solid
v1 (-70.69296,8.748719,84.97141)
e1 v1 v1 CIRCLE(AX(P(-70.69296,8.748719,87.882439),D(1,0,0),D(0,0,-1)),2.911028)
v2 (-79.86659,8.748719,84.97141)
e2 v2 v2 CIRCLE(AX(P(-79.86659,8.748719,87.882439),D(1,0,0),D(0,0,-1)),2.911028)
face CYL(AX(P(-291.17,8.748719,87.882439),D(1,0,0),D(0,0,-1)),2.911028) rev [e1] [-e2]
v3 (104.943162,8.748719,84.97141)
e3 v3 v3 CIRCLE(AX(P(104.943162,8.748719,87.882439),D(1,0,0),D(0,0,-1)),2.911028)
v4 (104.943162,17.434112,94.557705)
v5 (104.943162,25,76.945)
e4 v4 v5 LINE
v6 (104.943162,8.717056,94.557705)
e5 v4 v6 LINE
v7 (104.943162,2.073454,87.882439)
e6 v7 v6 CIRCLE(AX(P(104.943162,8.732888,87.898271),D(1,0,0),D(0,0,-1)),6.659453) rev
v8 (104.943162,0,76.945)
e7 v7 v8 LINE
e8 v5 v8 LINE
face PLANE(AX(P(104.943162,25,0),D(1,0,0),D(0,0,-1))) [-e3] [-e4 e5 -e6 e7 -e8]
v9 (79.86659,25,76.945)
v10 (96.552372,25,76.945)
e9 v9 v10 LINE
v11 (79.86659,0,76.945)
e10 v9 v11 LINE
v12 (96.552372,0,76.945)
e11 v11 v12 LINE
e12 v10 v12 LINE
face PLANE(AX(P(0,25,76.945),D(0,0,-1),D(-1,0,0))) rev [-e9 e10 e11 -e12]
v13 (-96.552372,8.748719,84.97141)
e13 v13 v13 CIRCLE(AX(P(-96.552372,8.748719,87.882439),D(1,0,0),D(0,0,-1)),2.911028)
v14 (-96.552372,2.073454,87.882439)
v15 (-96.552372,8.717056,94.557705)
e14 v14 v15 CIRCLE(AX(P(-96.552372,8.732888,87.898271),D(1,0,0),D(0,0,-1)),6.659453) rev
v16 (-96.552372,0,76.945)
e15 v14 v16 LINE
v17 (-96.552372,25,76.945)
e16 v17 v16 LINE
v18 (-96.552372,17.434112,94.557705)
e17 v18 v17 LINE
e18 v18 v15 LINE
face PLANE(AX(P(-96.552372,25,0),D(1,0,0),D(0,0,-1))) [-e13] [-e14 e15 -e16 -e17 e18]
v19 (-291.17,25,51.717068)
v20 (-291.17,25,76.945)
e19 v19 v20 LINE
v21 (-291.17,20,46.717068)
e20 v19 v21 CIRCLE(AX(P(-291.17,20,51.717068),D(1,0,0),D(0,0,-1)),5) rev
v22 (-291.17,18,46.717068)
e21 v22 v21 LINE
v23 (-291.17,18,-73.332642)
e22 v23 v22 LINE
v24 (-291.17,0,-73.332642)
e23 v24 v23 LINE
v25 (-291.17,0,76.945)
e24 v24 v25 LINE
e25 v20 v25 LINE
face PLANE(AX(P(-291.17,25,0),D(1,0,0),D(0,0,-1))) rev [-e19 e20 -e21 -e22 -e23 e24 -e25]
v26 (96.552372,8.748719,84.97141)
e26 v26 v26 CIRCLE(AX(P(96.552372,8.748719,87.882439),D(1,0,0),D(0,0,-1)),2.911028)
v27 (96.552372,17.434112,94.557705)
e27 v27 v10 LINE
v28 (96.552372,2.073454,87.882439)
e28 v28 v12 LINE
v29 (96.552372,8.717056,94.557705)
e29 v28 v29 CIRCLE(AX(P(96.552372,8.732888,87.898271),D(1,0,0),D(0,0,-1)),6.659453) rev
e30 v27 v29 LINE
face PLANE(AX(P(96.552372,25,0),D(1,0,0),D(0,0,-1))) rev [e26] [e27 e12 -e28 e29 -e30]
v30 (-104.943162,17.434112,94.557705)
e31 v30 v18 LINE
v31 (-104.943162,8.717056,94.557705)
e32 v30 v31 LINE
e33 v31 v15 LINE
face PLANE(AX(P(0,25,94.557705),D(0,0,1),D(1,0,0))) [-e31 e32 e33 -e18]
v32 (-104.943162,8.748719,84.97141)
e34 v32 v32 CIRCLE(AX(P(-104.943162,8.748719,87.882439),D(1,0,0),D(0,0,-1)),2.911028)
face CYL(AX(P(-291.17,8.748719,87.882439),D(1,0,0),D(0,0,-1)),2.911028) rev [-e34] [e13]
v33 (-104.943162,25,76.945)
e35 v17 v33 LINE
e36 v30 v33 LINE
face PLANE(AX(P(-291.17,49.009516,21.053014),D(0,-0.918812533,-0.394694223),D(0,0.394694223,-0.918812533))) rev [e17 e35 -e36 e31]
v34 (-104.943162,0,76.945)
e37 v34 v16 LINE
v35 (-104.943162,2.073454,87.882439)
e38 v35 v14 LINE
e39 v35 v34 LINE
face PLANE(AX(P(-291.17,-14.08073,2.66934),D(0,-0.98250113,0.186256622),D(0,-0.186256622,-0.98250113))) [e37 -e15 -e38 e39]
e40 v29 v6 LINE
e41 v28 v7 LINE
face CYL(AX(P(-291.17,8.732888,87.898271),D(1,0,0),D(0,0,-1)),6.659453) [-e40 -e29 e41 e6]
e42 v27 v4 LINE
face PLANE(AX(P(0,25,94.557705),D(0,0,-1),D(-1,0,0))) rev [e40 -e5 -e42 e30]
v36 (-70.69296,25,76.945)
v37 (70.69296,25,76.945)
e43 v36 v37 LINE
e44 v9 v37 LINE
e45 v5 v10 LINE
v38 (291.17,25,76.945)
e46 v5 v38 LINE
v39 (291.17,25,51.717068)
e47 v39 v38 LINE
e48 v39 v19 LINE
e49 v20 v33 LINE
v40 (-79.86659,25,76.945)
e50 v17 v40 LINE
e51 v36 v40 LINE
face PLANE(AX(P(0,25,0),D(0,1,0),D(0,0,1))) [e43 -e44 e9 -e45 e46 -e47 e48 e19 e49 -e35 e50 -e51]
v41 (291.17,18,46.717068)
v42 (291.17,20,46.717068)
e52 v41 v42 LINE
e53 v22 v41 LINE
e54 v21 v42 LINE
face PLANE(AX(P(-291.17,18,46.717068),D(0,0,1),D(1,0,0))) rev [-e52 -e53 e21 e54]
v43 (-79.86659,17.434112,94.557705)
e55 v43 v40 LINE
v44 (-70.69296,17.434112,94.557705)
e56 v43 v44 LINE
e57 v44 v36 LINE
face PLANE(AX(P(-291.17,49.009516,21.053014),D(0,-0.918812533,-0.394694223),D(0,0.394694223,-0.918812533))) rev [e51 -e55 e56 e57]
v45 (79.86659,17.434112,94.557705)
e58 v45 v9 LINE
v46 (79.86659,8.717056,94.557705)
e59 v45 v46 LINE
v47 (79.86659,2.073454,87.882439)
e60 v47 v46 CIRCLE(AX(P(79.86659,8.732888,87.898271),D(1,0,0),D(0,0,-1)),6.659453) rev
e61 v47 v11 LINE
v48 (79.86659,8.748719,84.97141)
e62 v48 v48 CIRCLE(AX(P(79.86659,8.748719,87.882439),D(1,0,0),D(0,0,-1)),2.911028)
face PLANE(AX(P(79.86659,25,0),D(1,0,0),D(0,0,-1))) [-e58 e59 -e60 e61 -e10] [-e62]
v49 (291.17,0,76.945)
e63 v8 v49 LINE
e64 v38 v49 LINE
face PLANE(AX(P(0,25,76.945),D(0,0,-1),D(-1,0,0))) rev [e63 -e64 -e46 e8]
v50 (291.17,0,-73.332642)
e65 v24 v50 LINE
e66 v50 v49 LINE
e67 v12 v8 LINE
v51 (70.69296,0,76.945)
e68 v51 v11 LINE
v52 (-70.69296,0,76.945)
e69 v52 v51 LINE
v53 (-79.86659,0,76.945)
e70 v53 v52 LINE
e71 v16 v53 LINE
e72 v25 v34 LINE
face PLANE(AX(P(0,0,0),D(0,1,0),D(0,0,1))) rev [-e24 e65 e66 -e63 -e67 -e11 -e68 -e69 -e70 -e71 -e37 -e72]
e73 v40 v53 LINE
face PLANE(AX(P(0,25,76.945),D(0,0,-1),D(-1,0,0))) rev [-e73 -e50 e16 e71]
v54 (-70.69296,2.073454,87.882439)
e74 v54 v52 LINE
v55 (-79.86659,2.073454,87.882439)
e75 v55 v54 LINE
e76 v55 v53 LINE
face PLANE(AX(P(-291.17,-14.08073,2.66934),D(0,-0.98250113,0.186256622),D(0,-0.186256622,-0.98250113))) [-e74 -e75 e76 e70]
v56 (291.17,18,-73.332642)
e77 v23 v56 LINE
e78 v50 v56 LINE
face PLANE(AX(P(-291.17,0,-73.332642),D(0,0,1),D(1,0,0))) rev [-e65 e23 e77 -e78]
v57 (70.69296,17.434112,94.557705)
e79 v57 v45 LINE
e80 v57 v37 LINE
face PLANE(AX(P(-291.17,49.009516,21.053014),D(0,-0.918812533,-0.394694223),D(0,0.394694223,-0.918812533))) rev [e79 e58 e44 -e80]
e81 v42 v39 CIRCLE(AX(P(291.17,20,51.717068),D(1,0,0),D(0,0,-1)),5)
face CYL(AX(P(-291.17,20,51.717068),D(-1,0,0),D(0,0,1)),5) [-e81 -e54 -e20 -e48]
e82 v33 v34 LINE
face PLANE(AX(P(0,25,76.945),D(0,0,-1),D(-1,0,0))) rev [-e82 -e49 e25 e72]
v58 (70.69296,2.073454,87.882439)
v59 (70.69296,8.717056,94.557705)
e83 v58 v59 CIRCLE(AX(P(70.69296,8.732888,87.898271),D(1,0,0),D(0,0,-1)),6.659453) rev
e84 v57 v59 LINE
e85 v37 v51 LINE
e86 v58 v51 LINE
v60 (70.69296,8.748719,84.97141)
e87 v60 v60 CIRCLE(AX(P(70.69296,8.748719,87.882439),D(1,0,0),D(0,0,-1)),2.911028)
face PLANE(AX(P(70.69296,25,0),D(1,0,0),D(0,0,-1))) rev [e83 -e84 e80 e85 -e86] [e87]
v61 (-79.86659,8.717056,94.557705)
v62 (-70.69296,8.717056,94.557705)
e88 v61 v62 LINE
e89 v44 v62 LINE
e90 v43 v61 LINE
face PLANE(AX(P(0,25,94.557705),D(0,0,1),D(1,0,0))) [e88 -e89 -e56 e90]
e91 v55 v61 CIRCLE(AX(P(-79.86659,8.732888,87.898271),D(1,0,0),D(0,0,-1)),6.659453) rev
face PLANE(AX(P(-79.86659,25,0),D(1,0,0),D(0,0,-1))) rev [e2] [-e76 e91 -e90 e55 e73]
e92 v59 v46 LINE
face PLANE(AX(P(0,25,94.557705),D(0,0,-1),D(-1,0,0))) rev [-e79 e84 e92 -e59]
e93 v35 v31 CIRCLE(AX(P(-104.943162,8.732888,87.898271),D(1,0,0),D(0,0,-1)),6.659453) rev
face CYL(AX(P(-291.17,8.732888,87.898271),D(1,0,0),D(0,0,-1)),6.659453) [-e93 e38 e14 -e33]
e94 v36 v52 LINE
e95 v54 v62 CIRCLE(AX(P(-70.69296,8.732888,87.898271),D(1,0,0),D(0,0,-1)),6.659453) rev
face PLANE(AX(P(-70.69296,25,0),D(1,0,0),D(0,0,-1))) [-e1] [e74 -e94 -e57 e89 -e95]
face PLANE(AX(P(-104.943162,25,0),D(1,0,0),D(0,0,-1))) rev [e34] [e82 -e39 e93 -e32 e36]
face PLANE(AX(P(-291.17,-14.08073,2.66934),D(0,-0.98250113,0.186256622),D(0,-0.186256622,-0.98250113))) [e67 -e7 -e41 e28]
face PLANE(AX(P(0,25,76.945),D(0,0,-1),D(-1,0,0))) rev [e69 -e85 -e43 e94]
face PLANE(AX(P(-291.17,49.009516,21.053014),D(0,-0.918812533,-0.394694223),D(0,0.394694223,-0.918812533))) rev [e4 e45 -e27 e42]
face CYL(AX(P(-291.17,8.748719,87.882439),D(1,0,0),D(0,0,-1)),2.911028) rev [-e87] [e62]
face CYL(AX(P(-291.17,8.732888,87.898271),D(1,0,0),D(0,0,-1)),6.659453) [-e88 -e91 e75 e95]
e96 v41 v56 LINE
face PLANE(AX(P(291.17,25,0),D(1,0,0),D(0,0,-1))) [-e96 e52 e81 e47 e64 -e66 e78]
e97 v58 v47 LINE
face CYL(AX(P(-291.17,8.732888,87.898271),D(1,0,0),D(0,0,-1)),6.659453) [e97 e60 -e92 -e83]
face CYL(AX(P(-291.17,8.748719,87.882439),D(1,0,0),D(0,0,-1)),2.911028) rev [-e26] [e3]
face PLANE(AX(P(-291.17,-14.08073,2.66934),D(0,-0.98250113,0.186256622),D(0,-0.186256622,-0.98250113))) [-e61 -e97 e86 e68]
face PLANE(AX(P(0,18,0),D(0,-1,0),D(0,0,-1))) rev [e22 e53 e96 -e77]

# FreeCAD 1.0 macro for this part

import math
import FreeCAD as App
import Part
import Sketcher

V = App.Vector
Q = App.Units.Quantity


def edges_at(feature, points):
    """Names of the edges that pass closest to the given points."""
    edges = feature.Shape.Edges
    near = lambda p: min(range(len(edges)), key=lambda i: edges[i].distToShape(Part.Vertex(*p))[0])
    return sorted({f"Edge{near(p) + 1}" for p in points})


def add_polygon(sketch, points):
    """Adds a closed chain of lines whose ends are joined by coincident constraints."""
    first, n = sketch.GeometryCount, len(points)
    for a, b in zip(points, points[1:] + points[:1]):
        sketch.addGeometry(Part.LineSegment(App.Vector(*a, 0), App.Vector(*b, 0)), False)
    for i in range(n):
        sketch.addConstraint(Sketcher.Constraint("Coincident", first + i, 2, first + (i + 1) % n, 1))

doc = App.newDocument("Part")
body = doc.addObject("PartDesign::Body", "Body")

sketch1 = body.newObject("Sketcher::SketchObject", "Sketch")
sketch1.AttachmentSupport = (doc.getObject("XZ_Plane"), [""])
sketch1.MapMode = "FlatFace"
add_polygon(sketch1, [(291.17, -76.945), (-291.17, -76.945), (-291.17, 76.945), (-104.943162, 76.945), (-104.943162, 94.557705), (-96.552372, 94.557705), (-96.552372, 76.945), (-79.86659, 76.945), (-79.86659, 94.557705), (-70.69296, 94.557705), (-70.69296, 76.945), (70.69296, 76.945), (70.69296, 94.557705), (79.86659, 94.557705), (79.86659, 76.945), (96.552372, 76.945), (96.552372, 94.557705), (104.943162, 94.557705), (104.943162, 76.945), (291.17, 76.945)])
sketch1.addConstraint([
    Sketcher.Constraint("Horizontal", 0),
    Sketcher.Constraint("Vertical", 1),
    Sketcher.Constraint("Horizontal", 2),
    Sketcher.Constraint("Vertical", 3),
    Sketcher.Constraint("Horizontal", 4),
    Sketcher.Constraint("Vertical", 5),
    Sketcher.Constraint("Horizontal", 6),
    Sketcher.Constraint("Vertical", 7),
    Sketcher.Constraint("Horizontal", 8),
    Sketcher.Constraint("Vertical", 9),
    Sketcher.Constraint("Horizontal", 10),
    Sketcher.Constraint("Vertical", 11),
    Sketcher.Constraint("Horizontal", 12),
    Sketcher.Constraint("Vertical", 13),
    Sketcher.Constraint("Horizontal", 14),
    Sketcher.Constraint("Vertical", 15),
    Sketcher.Constraint("Horizontal", 16),
    Sketcher.Constraint("Vertical", 17),
    Sketcher.Constraint("Horizontal", 18),
    Sketcher.Constraint("Vertical", 19),
    Sketcher.Constraint("Symmetric", 0, 2, 18, 2, -1, 1),
    Sketcher.Constraint("Symmetric", 8, 2, 11, 2, -2),
    Sketcher.Constraint("Symmetric", 6, 2, 13, 2, -2),
    Sketcher.Constraint("Symmetric", 4, 2, 15, 2, -2),
    Sketcher.Constraint("Symmetric", 2, 2, 17, 2, -2),
    Sketcher.Constraint("Horizontal", 2, 2, 5, 2),
    Sketcher.Constraint("Horizontal", 4, 2, 7, 2),
    Sketcher.Constraint("Horizontal", 6, 2, 9, 2),
    Sketcher.Constraint("DistanceX", 0, 2, 0, 1, Q("582.34 mm")),
    Sketcher.Constraint("DistanceY", 1, 1, 1, 2, Q("153.89 mm")),
    Sketcher.Constraint("DistanceX", 2, 1, 2, 2, Q("186.226838 mm")),
    Sketcher.Constraint("DistanceX", 4, 1, 4, 2, Q("8.39079 mm")),
    Sketcher.Constraint("DistanceX", 8, 1, 8, 2, Q("9.17363 mm")),
    Sketcher.Constraint("DistanceX", 10, 1, 10, 2, Q("141.38592 mm")),
    Sketcher.Constraint("DistanceY", 3, 1, 3, 2, Q("17.612705 mm")),
])
pad1 = body.newObject("PartDesign::Pad", "Pad")
pad1.Profile = sketch1
pad1.Length = 25
pad1.Reversed = True

sketch2 = body.newObject("Sketcher::SketchObject", "Sketch001")
sketch2.AttachmentSupport = (doc.getObject("YZ_Plane"), [""])
sketch2.MapMode = "FlatFace"
sketch2.AttachmentOffset = App.Placement(V(0, 0, 104.943162), App.Rotation())
sketch2.addGeometry(Part.Circle(V(8.748719, 87.882439, 0), V(0, 0, 1), 2.911029), False)
sketch2.addConstraint([
    Sketcher.Constraint("Diameter", 0, Q("5.822057 mm")),
    Sketcher.Constraint("DistanceX", -1, 1, 0, 3, Q("8.748719 mm")),
    Sketcher.Constraint("DistanceY", -1, 1, 0, 3, Q("87.882439 mm")),
])
pocket1 = body.newObject("PartDesign::Pocket", "Pocket")
pocket1.Profile = sketch2
pocket1.Type = "ThroughAll"

sketch3 = body.newObject("Sketcher::SketchObject", "Sketch002")
sketch3.AttachmentSupport = (doc.getObject("YZ_Plane"), [""])
sketch3.MapMode = "FlatFace"
sketch3.AttachmentOffset = App.Placement(V(0, 0, 104.943162), App.Rotation())
sketch3.addGeometry(Part.LineSegment(V(0, 76.945, 0), V(2.073454, 87.882439, 0)), False)
sketch3.addGeometry(Part.ArcOfCircle(Part.Circle(V(8.732888, 87.898271, 0), V(0, 0, 1), 6.659453), math.radians(90.136212), math.radians(180.136212)), False)
sketch3.addGeometry(Part.LineSegment(V(8.717056, 94.557705, 0), V(0, 94.557705, 0)), False)
sketch3.addGeometry(Part.LineSegment(V(0, 94.557705, 0), V(0, 76.945, 0)), False)
add_polygon(sketch3, [(17.434112, 94.557705), (25, 76.945), (25, 94.557705)])
sketch3.addConstraint([
    Sketcher.Constraint("Coincident", 0, 2, 1, 2),
    Sketcher.Constraint("Coincident", 1, 1, 2, 1),
    Sketcher.Constraint("Coincident", 2, 2, 3, 1),
    Sketcher.Constraint("Coincident", 3, 2, 0, 1),
    Sketcher.Constraint("Horizontal", 2),
    Sketcher.Constraint("Vertical", 3),
    Sketcher.Constraint("Vertical", 5),
    Sketcher.Constraint("Horizontal", 6),
    Sketcher.Constraint("PointOnObject", 2, 2, -2),
    Sketcher.Constraint("Horizontal", 3, 2, 4, 2),
    Sketcher.Constraint("Horizontal", 2, 2, 5, 2),
    Sketcher.Constraint("DistanceX", -1, 1, 4, 2, Q("25 mm")),
    Sketcher.Constraint("DistanceY", -1, 1, 3, 2, Q("76.945 mm")),
    Sketcher.Constraint("Radius", 1, Q("6.659453 mm")),
    Sketcher.Constraint("DistanceX", 6, 2, 6, 1, Q("7.565888 mm")),
    Sketcher.Constraint("Distance", 0, Q("11.132241 mm")),
    Sketcher.Constraint("DistanceX", 2, 2, 2, 1, Q("8.717056 mm")),
    Sketcher.Constraint("DistanceY", 3, 2, 3, 1, Q("17.612705 mm")),
    Sketcher.Constraint("DistanceY", -1, 1, 0, 2, Q("87.882439 mm")),
])
pocket2 = body.newObject("PartDesign::Pocket", "Pocket001")
pocket2.Profile = sketch3
pocket2.Type = "ThroughAll"

sketch4 = body.newObject("Sketcher::SketchObject", "Sketch003")
sketch4.AttachmentSupport = (doc.getObject("XZ_Plane"), [""])
sketch4.MapMode = "FlatFace"
sketch4.AttachmentOffset = App.Placement(V(0, 0, -25), App.Rotation())
add_polygon(sketch4, [(-291.17, -76.952924), (-291.17, 46.717068), (291.17, 46.717068), (291.17, -76.952924)])
sketch4.addConstraint([
    Sketcher.Constraint("Vertical", 0),
    Sketcher.Constraint("Horizontal", 1),
    Sketcher.Constraint("Vertical", 2),
    Sketcher.Constraint("Horizontal", 3),
    Sketcher.Constraint("DistanceX", 1, 1, 1, 2, Q("582.34 mm")),
    Sketcher.Constraint("DistanceX", 0, 2, -1, 1, Q("291.17 mm")),
    Sketcher.Constraint("DistanceY", 0, 1, 0, 2, Q("123.669992 mm")),
    Sketcher.Constraint("DistanceY", -1, 1, 0, 2, Q("46.717068 mm")),
])
pocket3 = body.newObject("PartDesign::Pocket", "Pocket002")
pocket3.Profile = sketch4
pocket3.Length = 7
pocket3.Reversed = True
doc.recompute()

fillet = body.newObject("PartDesign::Fillet", "Fillet")
fillet.Base = (pocket3, edges_at(pocket3, [(0, 25, 46.717)]))
fillet.Radius = 5

sketch5 = body.newObject("Sketcher::SketchObject", "Sketch004")
sketch5.AttachmentSupport = (doc.getObject("XZ_Plane"), [""])
sketch5.MapMode = "FlatFace"
sketch5.AttachmentOffset = App.Placement(V(0, 0, -18), App.Rotation())
add_polygon(sketch5, [(-291.17, -76.945), (-291.17, -73.332642), (291.17, -73.332642), (291.17, -76.945)])
sketch5.addConstraint([
    Sketcher.Constraint("Vertical", 0),
    Sketcher.Constraint("Horizontal", 1),
    Sketcher.Constraint("Vertical", 2),
    Sketcher.Constraint("Horizontal", 3),
    Sketcher.Constraint("DistanceX", 1, 1, 1, 2, Q("582.34 mm")),
    Sketcher.Constraint("DistanceX", 0, 2, -1, 1, Q("291.17 mm")),
    Sketcher.Constraint("DistanceY", 2, 2, -1, 1, Q("76.945 mm")),
    Sketcher.Constraint("DistanceY", 0, 1, 0, 2, Q("3.612358 mm")),
])
pocket4 = body.newObject("PartDesign::Pocket", "Pocket003")
pocket4.Profile = sketch5
pocket4.Type = "ThroughAll"
pocket4.Reversed = True

doc.recompute()
